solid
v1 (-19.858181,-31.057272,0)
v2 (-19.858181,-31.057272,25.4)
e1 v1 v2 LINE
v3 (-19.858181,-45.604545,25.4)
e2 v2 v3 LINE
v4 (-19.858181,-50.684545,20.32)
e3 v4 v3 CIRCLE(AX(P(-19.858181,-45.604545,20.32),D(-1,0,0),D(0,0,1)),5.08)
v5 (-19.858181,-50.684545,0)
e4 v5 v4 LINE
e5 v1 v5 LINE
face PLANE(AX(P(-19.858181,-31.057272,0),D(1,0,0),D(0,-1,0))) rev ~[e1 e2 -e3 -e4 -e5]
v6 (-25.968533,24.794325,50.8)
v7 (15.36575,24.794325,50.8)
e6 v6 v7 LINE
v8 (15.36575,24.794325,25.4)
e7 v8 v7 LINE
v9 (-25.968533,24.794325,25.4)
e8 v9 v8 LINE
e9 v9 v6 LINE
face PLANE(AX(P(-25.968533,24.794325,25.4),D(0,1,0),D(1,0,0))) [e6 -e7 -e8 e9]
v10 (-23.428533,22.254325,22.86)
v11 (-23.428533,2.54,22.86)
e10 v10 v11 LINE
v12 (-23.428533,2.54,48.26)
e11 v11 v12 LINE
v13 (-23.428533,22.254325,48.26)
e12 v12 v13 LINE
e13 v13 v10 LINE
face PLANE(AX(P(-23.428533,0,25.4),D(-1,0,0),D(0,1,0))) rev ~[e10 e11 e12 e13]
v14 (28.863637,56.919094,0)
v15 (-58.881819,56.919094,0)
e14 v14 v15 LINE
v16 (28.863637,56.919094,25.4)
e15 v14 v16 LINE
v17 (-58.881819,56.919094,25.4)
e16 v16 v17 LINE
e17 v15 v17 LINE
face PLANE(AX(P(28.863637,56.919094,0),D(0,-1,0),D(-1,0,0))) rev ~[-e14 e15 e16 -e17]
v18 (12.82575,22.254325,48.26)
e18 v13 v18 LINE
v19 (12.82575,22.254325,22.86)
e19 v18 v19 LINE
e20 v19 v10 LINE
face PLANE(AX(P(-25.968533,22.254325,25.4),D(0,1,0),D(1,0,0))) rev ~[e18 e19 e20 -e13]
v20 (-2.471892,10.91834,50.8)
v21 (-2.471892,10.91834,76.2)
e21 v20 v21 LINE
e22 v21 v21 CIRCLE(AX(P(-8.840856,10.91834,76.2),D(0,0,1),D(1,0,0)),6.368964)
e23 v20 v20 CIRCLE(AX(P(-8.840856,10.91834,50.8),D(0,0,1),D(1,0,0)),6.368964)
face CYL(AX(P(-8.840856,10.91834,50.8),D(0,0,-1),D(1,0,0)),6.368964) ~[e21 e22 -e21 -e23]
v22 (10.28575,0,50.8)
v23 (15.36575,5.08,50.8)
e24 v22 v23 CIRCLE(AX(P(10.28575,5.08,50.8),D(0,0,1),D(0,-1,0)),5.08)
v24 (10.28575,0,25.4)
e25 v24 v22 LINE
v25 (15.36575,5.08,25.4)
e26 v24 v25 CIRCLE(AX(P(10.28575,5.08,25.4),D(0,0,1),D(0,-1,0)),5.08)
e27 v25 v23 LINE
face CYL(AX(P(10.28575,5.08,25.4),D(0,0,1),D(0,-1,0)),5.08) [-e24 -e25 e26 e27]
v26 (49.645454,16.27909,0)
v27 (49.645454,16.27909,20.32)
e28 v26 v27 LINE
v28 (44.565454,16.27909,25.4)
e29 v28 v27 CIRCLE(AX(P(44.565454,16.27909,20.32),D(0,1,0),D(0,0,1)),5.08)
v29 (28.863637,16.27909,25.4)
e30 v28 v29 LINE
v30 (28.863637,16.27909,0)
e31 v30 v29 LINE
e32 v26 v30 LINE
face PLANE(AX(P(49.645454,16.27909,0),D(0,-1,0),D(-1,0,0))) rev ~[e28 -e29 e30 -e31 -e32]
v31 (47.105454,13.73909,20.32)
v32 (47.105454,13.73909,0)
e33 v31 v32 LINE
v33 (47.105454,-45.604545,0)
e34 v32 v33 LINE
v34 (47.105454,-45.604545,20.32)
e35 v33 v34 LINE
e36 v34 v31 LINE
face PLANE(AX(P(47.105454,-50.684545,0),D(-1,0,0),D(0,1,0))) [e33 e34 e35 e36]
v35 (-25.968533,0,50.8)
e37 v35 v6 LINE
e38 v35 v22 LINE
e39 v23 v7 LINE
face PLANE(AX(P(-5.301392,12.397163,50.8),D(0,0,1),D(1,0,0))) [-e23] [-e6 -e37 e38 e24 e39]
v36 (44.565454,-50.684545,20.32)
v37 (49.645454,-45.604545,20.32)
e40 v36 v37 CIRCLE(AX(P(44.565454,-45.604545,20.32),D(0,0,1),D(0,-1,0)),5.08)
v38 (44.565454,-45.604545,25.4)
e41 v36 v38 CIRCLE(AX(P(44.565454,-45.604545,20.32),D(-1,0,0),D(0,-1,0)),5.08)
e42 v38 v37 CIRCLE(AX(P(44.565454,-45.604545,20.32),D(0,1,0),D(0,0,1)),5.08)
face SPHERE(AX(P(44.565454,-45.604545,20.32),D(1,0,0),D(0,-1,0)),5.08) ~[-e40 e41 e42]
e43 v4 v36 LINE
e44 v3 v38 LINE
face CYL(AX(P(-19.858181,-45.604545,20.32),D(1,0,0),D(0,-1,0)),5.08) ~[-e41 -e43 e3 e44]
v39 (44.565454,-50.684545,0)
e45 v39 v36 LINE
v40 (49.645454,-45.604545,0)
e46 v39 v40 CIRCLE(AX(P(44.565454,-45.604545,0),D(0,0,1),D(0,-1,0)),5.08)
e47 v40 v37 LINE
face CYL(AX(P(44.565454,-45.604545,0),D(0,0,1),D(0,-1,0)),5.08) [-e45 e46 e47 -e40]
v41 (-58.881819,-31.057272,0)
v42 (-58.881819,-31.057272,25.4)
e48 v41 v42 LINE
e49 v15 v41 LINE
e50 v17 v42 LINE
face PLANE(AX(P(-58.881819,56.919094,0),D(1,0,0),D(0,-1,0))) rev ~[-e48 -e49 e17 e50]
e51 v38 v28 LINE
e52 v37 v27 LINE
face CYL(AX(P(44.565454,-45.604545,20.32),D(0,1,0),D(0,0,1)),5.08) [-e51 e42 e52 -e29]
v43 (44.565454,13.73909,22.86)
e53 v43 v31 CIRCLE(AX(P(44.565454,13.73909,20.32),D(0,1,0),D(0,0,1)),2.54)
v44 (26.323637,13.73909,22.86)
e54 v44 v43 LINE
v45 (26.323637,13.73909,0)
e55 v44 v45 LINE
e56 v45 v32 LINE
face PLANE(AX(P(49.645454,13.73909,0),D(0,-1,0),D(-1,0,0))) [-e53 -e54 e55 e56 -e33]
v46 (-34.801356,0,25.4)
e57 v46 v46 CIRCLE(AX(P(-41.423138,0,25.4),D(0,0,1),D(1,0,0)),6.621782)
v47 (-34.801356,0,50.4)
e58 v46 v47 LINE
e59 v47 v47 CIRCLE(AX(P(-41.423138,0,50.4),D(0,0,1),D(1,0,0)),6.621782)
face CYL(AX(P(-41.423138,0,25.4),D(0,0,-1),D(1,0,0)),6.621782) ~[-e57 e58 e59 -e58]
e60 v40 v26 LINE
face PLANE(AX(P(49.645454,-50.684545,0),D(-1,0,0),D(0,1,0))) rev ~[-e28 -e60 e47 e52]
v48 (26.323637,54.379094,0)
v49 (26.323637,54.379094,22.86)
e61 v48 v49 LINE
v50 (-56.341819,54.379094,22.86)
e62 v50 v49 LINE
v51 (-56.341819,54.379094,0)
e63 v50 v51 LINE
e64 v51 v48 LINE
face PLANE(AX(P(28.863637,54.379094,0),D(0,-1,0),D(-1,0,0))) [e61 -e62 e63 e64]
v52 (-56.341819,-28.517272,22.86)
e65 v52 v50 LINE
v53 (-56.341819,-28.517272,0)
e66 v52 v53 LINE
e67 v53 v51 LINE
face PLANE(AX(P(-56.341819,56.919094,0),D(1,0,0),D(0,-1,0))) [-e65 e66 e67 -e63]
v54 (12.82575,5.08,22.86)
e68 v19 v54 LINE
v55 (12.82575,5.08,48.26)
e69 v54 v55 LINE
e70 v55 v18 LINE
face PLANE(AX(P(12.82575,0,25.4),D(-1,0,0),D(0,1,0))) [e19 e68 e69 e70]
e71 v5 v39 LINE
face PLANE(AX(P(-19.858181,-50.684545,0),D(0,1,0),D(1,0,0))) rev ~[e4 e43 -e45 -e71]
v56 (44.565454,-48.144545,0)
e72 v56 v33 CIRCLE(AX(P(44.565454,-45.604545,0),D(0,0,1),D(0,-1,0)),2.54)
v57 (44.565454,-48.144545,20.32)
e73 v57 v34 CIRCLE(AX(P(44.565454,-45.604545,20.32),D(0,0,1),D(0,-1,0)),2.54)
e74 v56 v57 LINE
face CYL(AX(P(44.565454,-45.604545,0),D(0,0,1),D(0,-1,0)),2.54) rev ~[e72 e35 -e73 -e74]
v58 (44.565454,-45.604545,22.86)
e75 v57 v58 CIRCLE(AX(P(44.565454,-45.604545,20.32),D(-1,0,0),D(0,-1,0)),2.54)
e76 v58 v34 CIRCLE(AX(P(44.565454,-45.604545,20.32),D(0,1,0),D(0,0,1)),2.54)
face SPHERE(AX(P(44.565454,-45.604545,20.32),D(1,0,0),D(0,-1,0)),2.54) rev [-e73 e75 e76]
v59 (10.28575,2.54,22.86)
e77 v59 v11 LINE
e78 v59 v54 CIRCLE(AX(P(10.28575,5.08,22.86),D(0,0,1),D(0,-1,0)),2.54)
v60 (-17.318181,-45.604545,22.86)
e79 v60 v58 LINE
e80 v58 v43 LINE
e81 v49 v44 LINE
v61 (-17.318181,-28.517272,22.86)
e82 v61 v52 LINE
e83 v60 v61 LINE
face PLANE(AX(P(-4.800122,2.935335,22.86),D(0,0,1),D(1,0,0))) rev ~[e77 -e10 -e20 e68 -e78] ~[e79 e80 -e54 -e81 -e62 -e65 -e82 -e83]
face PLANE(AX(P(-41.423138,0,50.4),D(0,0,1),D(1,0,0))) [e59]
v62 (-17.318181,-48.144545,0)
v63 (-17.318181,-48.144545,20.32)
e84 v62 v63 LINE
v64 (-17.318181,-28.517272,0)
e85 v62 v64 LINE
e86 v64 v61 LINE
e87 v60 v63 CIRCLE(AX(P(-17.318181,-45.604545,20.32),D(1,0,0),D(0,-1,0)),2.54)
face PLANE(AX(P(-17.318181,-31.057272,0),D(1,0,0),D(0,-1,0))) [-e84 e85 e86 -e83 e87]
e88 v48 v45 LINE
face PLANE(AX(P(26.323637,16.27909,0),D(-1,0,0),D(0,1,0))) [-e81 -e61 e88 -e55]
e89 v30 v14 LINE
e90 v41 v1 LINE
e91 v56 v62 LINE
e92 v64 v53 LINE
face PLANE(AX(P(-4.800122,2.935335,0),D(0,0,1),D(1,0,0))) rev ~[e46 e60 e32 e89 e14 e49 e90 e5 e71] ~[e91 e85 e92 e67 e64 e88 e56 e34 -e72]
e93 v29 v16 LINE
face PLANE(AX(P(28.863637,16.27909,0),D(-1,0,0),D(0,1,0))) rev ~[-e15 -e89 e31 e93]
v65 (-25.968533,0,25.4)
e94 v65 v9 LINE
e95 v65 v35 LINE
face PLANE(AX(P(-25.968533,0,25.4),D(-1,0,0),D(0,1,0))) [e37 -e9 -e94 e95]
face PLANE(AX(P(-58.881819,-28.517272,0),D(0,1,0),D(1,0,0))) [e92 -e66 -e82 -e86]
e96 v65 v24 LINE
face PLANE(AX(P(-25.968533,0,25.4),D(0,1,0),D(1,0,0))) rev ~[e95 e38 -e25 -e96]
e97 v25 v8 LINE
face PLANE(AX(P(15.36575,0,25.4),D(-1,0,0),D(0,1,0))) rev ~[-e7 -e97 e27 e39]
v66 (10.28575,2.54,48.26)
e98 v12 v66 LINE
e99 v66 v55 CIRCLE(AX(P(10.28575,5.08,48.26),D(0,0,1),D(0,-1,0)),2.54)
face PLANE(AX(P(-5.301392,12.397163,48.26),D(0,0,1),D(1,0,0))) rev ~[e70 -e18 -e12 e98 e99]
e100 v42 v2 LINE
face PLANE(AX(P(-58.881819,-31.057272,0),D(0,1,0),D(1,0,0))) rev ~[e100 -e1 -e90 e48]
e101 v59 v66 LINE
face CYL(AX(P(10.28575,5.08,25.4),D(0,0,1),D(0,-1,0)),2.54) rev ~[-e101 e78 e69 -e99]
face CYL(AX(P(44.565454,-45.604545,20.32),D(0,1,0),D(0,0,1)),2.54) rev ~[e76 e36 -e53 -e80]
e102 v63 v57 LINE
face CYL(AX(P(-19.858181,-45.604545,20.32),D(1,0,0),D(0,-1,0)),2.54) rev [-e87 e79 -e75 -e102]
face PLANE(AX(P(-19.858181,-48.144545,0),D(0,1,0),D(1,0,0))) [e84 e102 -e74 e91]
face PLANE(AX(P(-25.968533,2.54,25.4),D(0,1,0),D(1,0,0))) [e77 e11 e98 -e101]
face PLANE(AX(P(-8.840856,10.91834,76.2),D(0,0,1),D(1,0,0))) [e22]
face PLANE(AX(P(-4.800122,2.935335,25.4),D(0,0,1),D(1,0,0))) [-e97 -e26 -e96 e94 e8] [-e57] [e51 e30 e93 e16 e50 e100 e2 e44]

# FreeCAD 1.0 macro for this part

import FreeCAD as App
import Part
import Sketcher

V = App.Vector
Q = App.Units.Quantity


def edges_at(feature, points):
    """Names of the edges that pass closest to the given points."""
    edges = feature.Shape.Edges
    near = lambda p: min(range(len(edges)), key=lambda i: edges[i].distToShape(Part.Vertex(*p))[0])
    return sorted({f"Edge{near(p) + 1}" for p in points})


def faces_at(feature, points):
    """Names of the faces that lie closest to the given points."""
    faces = feature.Shape.Faces
    near = lambda p: min(range(len(faces)), key=lambda i: faces[i].distToShape(Part.Vertex(*p))[0])
    return sorted({f"Face{near(p) + 1}" for p in points})

doc = App.newDocument("Part")
body = doc.addObject("PartDesign::Body", "Body")

# Sketch on XY plane
sketch1 = body.newObject("Sketcher::SketchObject", "Sketch")
sketch1.AttachmentSupport = (doc.getObject("XY_Plane"), [""])
sketch1.MapMode = "FlatFace"
sketch1.addGeometry([
    Part.LineSegment(V(28.863637, 56.919094, 0), V(-58.881819, 56.919094, 0)),  # 0
    Part.LineSegment(V(-58.881819, 56.919094, 0), V(-58.881819, -31.057272, 0)),  # 1
    Part.LineSegment(V(-58.881819, -31.057272, 0), V(-19.858181, -31.057272, 0)),  # 2
    Part.LineSegment(V(-19.858181, -31.057272, 0), V(-19.858181, -50.684545, 0)),  # 3
    Part.LineSegment(V(-19.858181, -50.684545, 0), V(49.645454, -50.684545, 0)),  # 4
    Part.LineSegment(V(49.645454, -50.684545, 0), V(49.645454, 16.27909, 0)),  # 5
    Part.LineSegment(V(49.645454, 16.27909, 0), V(28.863637, 16.27909, 0)),  # 6
    Part.LineSegment(V(28.863637, 16.27909, 0), V(28.863637, 56.919094, 0)),  # 7
], False)
sketch1.addConstraint([
    Sketcher.Constraint("Coincident", 0, 2, 1, 1),
    Sketcher.Constraint("Coincident", 1, 2, 2, 1),
    Sketcher.Constraint("Coincident", 2, 2, 3, 1),
    Sketcher.Constraint("Coincident", 3, 2, 4, 1),
    Sketcher.Constraint("Coincident", 4, 2, 5, 1),
    Sketcher.Constraint("Coincident", 5, 2, 6, 1),
    Sketcher.Constraint("Coincident", 6, 2, 7, 1),
    Sketcher.Constraint("Coincident", 7, 2, 0, 1),
    Sketcher.Constraint("Horizontal", 0),
    Sketcher.Constraint("Vertical", 1),
    Sketcher.Constraint("Horizontal", 2),
    Sketcher.Constraint("Vertical", 3),
    Sketcher.Constraint("Horizontal", 4),
    Sketcher.Constraint("Vertical", 5),
    Sketcher.Constraint("Horizontal", 6),
    Sketcher.Constraint("Vertical", 7),
    Sketcher.Constraint("DistanceY", 7, 1, 7, 2, Q("1.6000002 in")),
    Sketcher.Constraint("DistanceX", 0, 2, 0, 1, Q("87.745456 mm")),
    Sketcher.Constraint("DistanceX", 2, 1, 2, 2, Q("39.023638 mm")),
    Sketcher.Constraint("DistanceX", 4, 1, 4, 2, Q("69.503635 mm")),
    Sketcher.Constraint("DistanceY", 1, 2, 1, 1, Q("87.976366 mm")),
    Sketcher.Constraint("DistanceY", 3, 2, 3, 1, Q("19.627273 mm")),
    Sketcher.Constraint("DistanceX", 0, 2, -1, 1, Q("58.881819 mm")),
    Sketcher.Constraint("DistanceY", -1, 1, 5, 2, Q("16.27909 mm")),
])
pad1 = body.newObject("PartDesign::Pad", "Pad")
pad1.Profile = sketch1
pad1.Length = Q("1 in")
doc.recompute()

fillet = body.newObject("PartDesign::Fillet", "Fillet")
fillet.Base = (pad1, edges_at(pad1, [(14.894, -50.685, 25.4)]))
fillet.Radius = Q("0.2 in")
doc.recompute()

fillet2 = body.newObject("PartDesign::Fillet", "Fillet001")
fillet2.Base = (fillet, edges_at(fillet, [(49.645, -14.663, 25.4)]))
fillet2.Radius = Q("0.2 in")

# Sketch on XY plane
sketch2 = body.newObject("Sketcher::SketchObject", "Sketch001")
sketch2.AttachmentSupport = (doc.getObject("XY_Plane"), [""])
sketch2.MapMode = "FlatFace"
sketch2.AttachmentOffset = App.Placement(V(0, 0, 1 * 25.4), App.Rotation())
sketch2.addGeometry([
    Part.LineSegment(V(-25.968533, 24.794325, 0), V(-25.968533, 0, 0)),
    Part.LineSegment(V(-25.968533, 0, 0), V(15.36575, 0, 0)),
    Part.LineSegment(V(15.36575, 0, 0), V(15.36575, 24.794325, 0)),
    Part.LineSegment(V(15.36575, 24.794325, 0), V(-25.968533, 24.794325, 0)),
], False)
sketch2.addConstraint([
    Sketcher.Constraint("Coincident", 0, 2, 1, 1),
    Sketcher.Constraint("Coincident", 1, 2, 2, 1),
    Sketcher.Constraint("Coincident", 2, 2, 3, 1),
    Sketcher.Constraint("Coincident", 3, 2, 0, 1),
    Sketcher.Constraint("Vertical", 0),
    Sketcher.Constraint("Horizontal", 1),
    Sketcher.Constraint("Vertical", 2),
    Sketcher.Constraint("Horizontal", 3),
    Sketcher.Constraint("PointOnObject", 0, 2, -1),
    Sketcher.Constraint("DistanceX", 1, 1, 1, 2, Q("41.334283 mm")),
    Sketcher.Constraint("DistanceY", 0, 2, 0, 1, Q("24.794325 mm")),
    Sketcher.Constraint("DistanceX", -1, 1, 1, 2, Q("15.36575 mm")),
])
pad2 = body.newObject("PartDesign::Pad", "Pad001")
pad2.Profile = sketch2
pad2.Length = Q("1 in")
doc.recompute()

fillet3 = body.newObject("PartDesign::Fillet", "Fillet002")
fillet3.Base = (pad2, edges_at(pad2, [(15.366, 0, 38.1)]))
fillet3.Radius = Q("0.2 in")
doc.recompute()

thickness = body.newObject("PartDesign::Thickness", "Thickness")
thickness.Base = (fillet3, faces_at(fillet3, [(-4.618, 3.117, 0)]))
thickness.Value = Q("0.1 in")
thickness.Reversed = True
thickness.Join = "Intersection"

# Sketch on XY plane
sketch3 = body.newObject("Sketcher::SketchObject", "Sketch002")
sketch3.AttachmentSupport = (doc.getObject("XY_Plane"), [""])
sketch3.MapMode = "FlatFace"
sketch3.AttachmentOffset = App.Placement(V(0, 0, 2 * 25.4), App.Rotation())
sketch3.addGeometry(Part.Circle(V(-8.840856, 10.91834, 0), V(0, 0, 1), 6.368964), False)
sketch3.addConstraint([
    Sketcher.Constraint("Diameter", 0, Q("12.737928 mm")),
    Sketcher.Constraint("DistanceY", -1, 1, 0, 3, Q("10.91834 mm")),
    Sketcher.Constraint("DistanceX", 0, 3, -1, 1, Q("8.840856 mm")),
])
pad3 = body.newObject("PartDesign::Pad", "Pad002")
pad3.Profile = sketch3
pad3.Length = Q("1 in")

# Sketch on XY plane
sketch4 = body.newObject("Sketcher::SketchObject", "Sketch003")
sketch4.AttachmentSupport = (doc.getObject("XY_Plane"), [""])
sketch4.MapMode = "FlatFace"
sketch4.AttachmentOffset = App.Placement(V(0, 0, 1 * 25.4), App.Rotation())
sketch4.addGeometry(Part.Circle(V(-41.423138, 0, 0), V(0, 0, 1), 6.621782), False)
sketch4.addConstraint([
    Sketcher.Constraint("PointOnObject", 0, 3, -1),
    Sketcher.Constraint("Diameter", 0, Q("0.5214002 in")),
    Sketcher.Constraint("DistanceX", 0, 3, -1, 1, Q("41.423138 mm")),
])
pad4 = body.newObject("PartDesign::Pad", "Pad003")
pad4.Profile = sketch4
pad4.Length = 25

doc.recompute()
